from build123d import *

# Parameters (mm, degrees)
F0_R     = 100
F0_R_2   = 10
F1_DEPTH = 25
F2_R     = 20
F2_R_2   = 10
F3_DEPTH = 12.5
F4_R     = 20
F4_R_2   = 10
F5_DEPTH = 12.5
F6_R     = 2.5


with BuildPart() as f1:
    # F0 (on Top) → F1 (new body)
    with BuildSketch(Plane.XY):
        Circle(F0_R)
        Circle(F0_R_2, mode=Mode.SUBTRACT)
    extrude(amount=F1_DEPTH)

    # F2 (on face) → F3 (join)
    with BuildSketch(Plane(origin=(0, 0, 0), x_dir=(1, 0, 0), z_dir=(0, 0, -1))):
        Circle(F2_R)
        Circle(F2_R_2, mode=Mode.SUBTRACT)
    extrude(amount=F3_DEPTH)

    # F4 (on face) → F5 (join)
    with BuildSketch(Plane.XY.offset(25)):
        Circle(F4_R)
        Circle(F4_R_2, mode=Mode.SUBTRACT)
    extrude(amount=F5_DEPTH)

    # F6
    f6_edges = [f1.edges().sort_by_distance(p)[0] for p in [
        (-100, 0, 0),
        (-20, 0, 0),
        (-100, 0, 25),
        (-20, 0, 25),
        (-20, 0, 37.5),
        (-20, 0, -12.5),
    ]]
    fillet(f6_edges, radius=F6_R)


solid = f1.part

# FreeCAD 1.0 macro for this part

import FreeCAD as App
import Part
import Sketcher

V = App.Vector


def edges_at(feature, points):
    """Names of the edges that pass closest to the given points."""
    edges = feature.Shape.Edges
    near = lambda p: min(range(len(edges)), key=lambda i: edges[i].distToShape(Part.Vertex(*p))[0])
    return sorted({f"Edge{near(p) + 1}" for p in points})

doc = App.newDocument("Part")
params = doc.addObject("Spreadsheet::Sheet", "Params")
for row, (alias, value) in enumerate([
    ("sketch1_diameter", "200 mm"),
    ("sketch1_diameter2", "20 mm"),
    ("pad1_length", "25 mm"),
    ("sketch2_diameter", "40 mm"),
    ("sketch2_diameter2", "20 mm"),
    ("pad2_length", "12.5 mm"),
    ("sketch3_diameter", "40 mm"),
    ("sketch3_diameter2", "20 mm"),
    ("pad3_length", "12.5 mm"),
    ("fillet_radius", "2.5 mm"),
], start=1):
    params.set(f"A{row}", alias)
    params.set(f"B{row}", "=" + value)
    params.setAlias(f"B{row}", alias)

body = doc.addObject("PartDesign::Body", "Body")

# Sketch on XY plane
sketch1 = body.newObject("Sketcher::SketchObject", "Sketch")
sketch1.AttachmentSupport = (doc.getObject("XY_Plane"), [""])
sketch1.MapMode = "FlatFace"
sketch1.addGeometry([
    Part.Circle(V(0, 0, 0), V(0, 0, 1), 100),
    Part.Circle(V(0, 0, 0), V(0, 0, 1), 10),
], False)
sketch1.addConstraint([
    Sketcher.Constraint("Coincident", 0, 3, -1, 1),
    Sketcher.Constraint("Coincident", 1, 3, -1, 1),
    Sketcher.Constraint("Diameter", 0, 200.0),
    Sketcher.Constraint("Diameter", 1, 20.0),
])
sketch1.setExpression("Constraints[2]", "Params.sketch1_diameter")
sketch1.setExpression("Constraints[3]", "Params.sketch1_diameter2")
pad1 = body.newObject("PartDesign::Pad", "Pad")
pad1.Profile = sketch1
pad1.setExpression("Length", "Params.pad1_length")

# Sketch on XY plane
sketch2 = body.newObject("Sketcher::SketchObject", "Sketch001")
sketch2.AttachmentSupport = (doc.getObject("XY_Plane"), [""])
sketch2.MapMode = "FlatFace"
sketch2.addGeometry([
    Part.Circle(V(0, 0, 0), V(0, 0, 1), 20),
    Part.Circle(V(0, 0, 0), V(0, 0, 1), 10),
], False)
sketch2.addConstraint([
    Sketcher.Constraint("Coincident", 0, 3, -1, 1),
    Sketcher.Constraint("Coincident", 1, 3, -1, 1),
    Sketcher.Constraint("Diameter", 0, 40.0),
    Sketcher.Constraint("Diameter", 1, 20.0),
])
sketch2.setExpression("Constraints[2]", "Params.sketch2_diameter")
sketch2.setExpression("Constraints[3]", "Params.sketch2_diameter2")
pad2 = body.newObject("PartDesign::Pad", "Pad001")
pad2.Profile = sketch2
pad2.setExpression("Length", "Params.pad2_length")
pad2.Reversed = True

# Sketch on XY plane
sketch3 = body.newObject("Sketcher::SketchObject", "Sketch002")
sketch3.AttachmentSupport = (doc.getObject("XY_Plane"), [""])
sketch3.MapMode = "FlatFace"
sketch3.AttachmentOffset = App.Placement(V(0, 0, 25), App.Rotation())
sketch3.addGeometry([
    Part.Circle(V(0, 0, 0), V(0, 0, 1), 20),
    Part.Circle(V(0, 0, 0), V(0, 0, 1), 10),
], False)
sketch3.addConstraint([
    Sketcher.Constraint("Coincident", 0, 3, -1, 1),
    Sketcher.Constraint("Coincident", 1, 3, -1, 1),
    Sketcher.Constraint("Diameter", 0, 40.0),
    Sketcher.Constraint("Diameter", 1, 20.0),
])
sketch3.setExpression("Constraints[2]", "Params.sketch3_diameter")
sketch3.setExpression("Constraints[3]", "Params.sketch3_diameter2")
pad3 = body.newObject("PartDesign::Pad", "Pad002")
pad3.Profile = sketch3
pad3.setExpression("Length", "Params.pad3_length")
doc.recompute()

fillet = body.newObject("PartDesign::Fillet", "Fillet")
fillet.Base = (pad3, edges_at(pad3, [
    (-100, 0, 0),
    (-20, 0, 0),
    (-100, 0, 25),
    (-20, 0, 25),
    (-20, 0, 37.5),
    (-20, 0, -12.5),
]))
fillet.setExpression("Radius", "Params.fillet_radius")

doc.recompute()
